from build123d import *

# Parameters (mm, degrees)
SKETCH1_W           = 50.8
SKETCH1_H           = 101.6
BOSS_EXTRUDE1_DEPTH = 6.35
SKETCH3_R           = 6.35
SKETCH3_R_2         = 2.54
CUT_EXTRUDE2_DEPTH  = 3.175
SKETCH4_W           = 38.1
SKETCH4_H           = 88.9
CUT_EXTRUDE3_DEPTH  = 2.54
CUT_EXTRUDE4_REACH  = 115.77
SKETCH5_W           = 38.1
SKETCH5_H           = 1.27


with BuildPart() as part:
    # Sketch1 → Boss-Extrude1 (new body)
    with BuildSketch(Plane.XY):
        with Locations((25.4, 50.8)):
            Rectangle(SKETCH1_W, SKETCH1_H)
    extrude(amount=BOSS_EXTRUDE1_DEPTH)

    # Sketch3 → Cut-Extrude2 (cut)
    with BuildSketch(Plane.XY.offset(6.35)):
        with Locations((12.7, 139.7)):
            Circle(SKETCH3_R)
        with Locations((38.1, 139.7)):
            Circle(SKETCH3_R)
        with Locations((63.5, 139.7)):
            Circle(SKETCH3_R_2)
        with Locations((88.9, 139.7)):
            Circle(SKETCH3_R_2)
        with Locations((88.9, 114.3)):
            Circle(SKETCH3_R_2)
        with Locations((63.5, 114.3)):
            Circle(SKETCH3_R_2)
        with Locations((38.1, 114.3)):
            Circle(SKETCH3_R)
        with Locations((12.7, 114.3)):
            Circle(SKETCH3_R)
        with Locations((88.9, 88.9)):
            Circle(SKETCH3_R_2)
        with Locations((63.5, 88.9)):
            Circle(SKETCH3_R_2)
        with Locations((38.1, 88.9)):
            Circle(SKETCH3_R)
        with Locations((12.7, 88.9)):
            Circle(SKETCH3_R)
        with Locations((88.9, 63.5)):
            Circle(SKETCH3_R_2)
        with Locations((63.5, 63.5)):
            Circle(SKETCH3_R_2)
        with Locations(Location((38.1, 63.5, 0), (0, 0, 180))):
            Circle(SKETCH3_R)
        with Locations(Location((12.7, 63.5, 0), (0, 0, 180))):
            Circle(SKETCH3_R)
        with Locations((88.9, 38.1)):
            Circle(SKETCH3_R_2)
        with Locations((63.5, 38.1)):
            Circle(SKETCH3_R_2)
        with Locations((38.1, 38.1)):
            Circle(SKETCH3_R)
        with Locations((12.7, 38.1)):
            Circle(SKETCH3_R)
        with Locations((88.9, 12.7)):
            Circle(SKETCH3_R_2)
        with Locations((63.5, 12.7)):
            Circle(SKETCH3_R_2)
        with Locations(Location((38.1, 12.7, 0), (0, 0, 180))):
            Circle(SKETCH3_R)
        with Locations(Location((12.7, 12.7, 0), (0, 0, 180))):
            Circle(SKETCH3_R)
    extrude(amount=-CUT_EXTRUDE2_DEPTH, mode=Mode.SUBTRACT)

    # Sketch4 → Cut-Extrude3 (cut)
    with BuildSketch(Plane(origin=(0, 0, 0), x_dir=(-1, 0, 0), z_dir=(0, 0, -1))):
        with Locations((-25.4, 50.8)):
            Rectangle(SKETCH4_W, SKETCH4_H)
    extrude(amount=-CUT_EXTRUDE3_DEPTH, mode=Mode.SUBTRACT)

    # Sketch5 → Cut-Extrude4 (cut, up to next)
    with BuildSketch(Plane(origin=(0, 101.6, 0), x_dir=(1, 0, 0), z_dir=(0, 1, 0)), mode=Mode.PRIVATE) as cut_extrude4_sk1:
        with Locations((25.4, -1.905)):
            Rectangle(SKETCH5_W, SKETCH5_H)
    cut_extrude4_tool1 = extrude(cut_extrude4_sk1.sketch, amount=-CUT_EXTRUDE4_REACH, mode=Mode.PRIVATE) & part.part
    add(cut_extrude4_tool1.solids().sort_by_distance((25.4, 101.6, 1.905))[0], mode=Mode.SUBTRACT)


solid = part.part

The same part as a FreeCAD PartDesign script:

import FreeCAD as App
import Part
import Sketcher
Q = App.Units.Quantity

doc = App.newDocument("Part")
params = doc.addObject("Spreadsheet::Sheet", "Params")
for row, (alias, value) in enumerate([
    ("sketch1_width", "2 in"),
    ("sketch1_height", "4 in"),
    ("pad1_length", "0.25 in"),
    ("sketch2_diameter", "0.5 in"),
    ("sketch2_diameter2", "0.2 in"),
    ("pocket1_length", "0.125 in"),
    ("sketch3_width", "1.5 in"),
    ("sketch3_height", "3.5 in"),
    ("pocket2_length", "0.1 in"),
    ("sketch4_width", "1.5 in"),
    ("sketch4_height", "0.05 in"),
], start=1):
    params.set(f"A{row}", alias)
    params.set(f"B{row}", "=" + value)
    params.setAlias(f"B{row}", alias)

body = doc.addObject("PartDesign::Body", "Body")

sketch1 = body.newObject("Sketcher::SketchObject", "Sketch")
sketch1.AttachmentSupport = (doc.getObject("XY_Plane"), [""])
sketch1.MapMode = "FlatFace"
sketch1.addGeometry(Part.LineSegment(App.Vector(0, 102, 0), App.Vector(0, 0, 0)), False)
sketch1.addGeometry(Part.LineSegment(App.Vector(0, 0, 0), App.Vector(51, 0, 0)), False)
sketch1.addGeometry(Part.LineSegment(App.Vector(51, 0, 0), App.Vector(51, 102, 0)), False)
sketch1.addGeometry(Part.LineSegment(App.Vector(51, 102, 0), App.Vector(0, 102, 0)), False)
sketch1.addConstraint(Sketcher.Constraint("Coincident", 0, 2, 1, 1))
sketch1.addConstraint(Sketcher.Constraint("Coincident", 1, 2, 2, 1))
sketch1.addConstraint(Sketcher.Constraint("Coincident", 2, 2, 3, 1))
sketch1.addConstraint(Sketcher.Constraint("Coincident", 3, 2, 0, 1))
sketch1.addConstraint(Sketcher.Constraint("Vertical", 0))
sketch1.addConstraint(Sketcher.Constraint("Horizontal", 1))
sketch1.addConstraint(Sketcher.Constraint("Vertical", 2))
sketch1.addConstraint(Sketcher.Constraint("Horizontal", 3))
sketch1.addConstraint(Sketcher.Constraint("Coincident", 0, 2, -1, 1))
sketch1.addConstraint(Sketcher.Constraint("DistanceX", 1, 1, 1, 2, Q("2 in")))
sketch1.addConstraint(Sketcher.Constraint("DistanceY", 0, 2, 0, 1, Q("4 in")))
sketch1.setExpression("Constraints[9]", "Params.sketch1_width")
sketch1.setExpression("Constraints[10]", "Params.sketch1_height")
pad1 = body.newObject("PartDesign::Pad", "Pad")
pad1.Profile = sketch1
pad1.setExpression("Length", "Params.pad1_length")

sketch2 = body.newObject("Sketcher::SketchObject", "Sketch001")
sketch2.AttachmentSupport = (doc.getObject("XY_Plane"), [""])
sketch2.MapMode = "FlatFace"
sketch2.AttachmentOffset = App.Placement(App.Vector(0, 0, 0.25 * 25.4), App.Rotation())
sketch2.addGeometry(Part.Circle(App.Vector(12.7, 139.7, 0), App.Vector(0, 0, 1), 6.3), False)
sketch2.addGeometry(Part.Circle(App.Vector(38.1, 139.7, 0), App.Vector(0, 0, 1), 6.3), False)
sketch2.addGeometry(Part.Circle(App.Vector(63.5, 139.7, 0), App.Vector(0, 0, 1), 2.5), False)
sketch2.addGeometry(Part.Circle(App.Vector(88.9, 139.7, 0), App.Vector(0, 0, 1), 2.5), False)
sketch2.addGeometry(Part.Circle(App.Vector(88.9, 114.3, 0), App.Vector(0, 0, 1), 2.5), False)
sketch2.addGeometry(Part.Circle(App.Vector(63.5, 114.3, 0), App.Vector(0, 0, 1), 2.5), False)
sketch2.addGeometry(Part.Circle(App.Vector(38.1, 114.3, 0), App.Vector(0, 0, 1), 6.3), False)
sketch2.addGeometry(Part.Circle(App.Vector(12.7, 114.3, 0), App.Vector(0, 0, 1), 6.3), False)
sketch2.addGeometry(Part.Circle(App.Vector(88.9, 88.9, 0), App.Vector(0, 0, 1), 2.5), False)
sketch2.addGeometry(Part.Circle(App.Vector(63.5, 88.9, 0), App.Vector(0, 0, 1), 2.5), False)
sketch2.addGeometry(Part.Circle(App.Vector(38.1, 88.9, 0), App.Vector(0, 0, 1), 6.3), False)
sketch2.addGeometry(Part.Circle(App.Vector(12.7, 88.9, 0), App.Vector(0, 0, 1), 6.3), False)
sketch2.addGeometry(Part.Circle(App.Vector(88.9, 63.5, 0), App.Vector(0, 0, 1), 2.5), False)
sketch2.addGeometry(Part.Circle(App.Vector(63.5, 63.5, 0), App.Vector(0, 0, 1), 2.5), False)
sketch2.addGeometry(Part.Circle(App.Vector(38.1, 63.5, 0), App.Vector(0, 0, 1), 6.3), False)
sketch2.addGeometry(Part.Circle(App.Vector(12.7, 63.5, 0), App.Vector(0, 0, 1), 6.3), False)
sketch2.addGeometry(Part.Circle(App.Vector(88.9, 38.1, 0), App.Vector(0, 0, 1), 2.5), False)
sketch2.addGeometry(Part.Circle(App.Vector(63.5, 38.1, 0), App.Vector(0, 0, 1), 2.5), False)
sketch2.addGeometry(Part.Circle(App.Vector(38.1, 38.1, 0), App.Vector(0, 0, 1), 6.3), False)
sketch2.addGeometry(Part.Circle(App.Vector(12.7, 38.1, 0), App.Vector(0, 0, 1), 6.3), False)
sketch2.addGeometry(Part.Circle(App.Vector(88.9, 12.7, 0), App.Vector(0, 0, 1), 2.5), False)
sketch2.addGeometry(Part.Circle(App.Vector(63.5, 12.7, 0), App.Vector(0, 0, 1), 2.5), False)
sketch2.addGeometry(Part.Circle(App.Vector(38.1, 12.7, 0), App.Vector(0, 0, 1), 6.3), False)
sketch2.addGeometry(Part.Circle(App.Vector(12.7, 12.7, 0), App.Vector(0, 0, 1), 6.3), False)
sketch2.addConstraint(Sketcher.Constraint("Equal", 0, 1))
sketch2.addConstraint(Sketcher.Constraint("Equal", 2, 3))
sketch2.addConstraint(Sketcher.Constraint("Equal", 3, 4))
sketch2.addConstraint(Sketcher.Constraint("Equal", 4, 5))
sketch2.addConstraint(Sketcher.Constraint("Equal", 1, 6))
sketch2.addConstraint(Sketcher.Constraint("Equal", 6, 7))
sketch2.addConstraint(Sketcher.Constraint("Equal", 5, 8))
sketch2.addConstraint(Sketcher.Constraint("Equal", 8, 9))
sketch2.addConstraint(Sketcher.Constraint("Equal", 7, 10))
sketch2.addConstraint(Sketcher.Constraint("Equal", 10, 11))
sketch2.addConstraint(Sketcher.Constraint("Equal", 9, 12))
sketch2.addConstraint(Sketcher.Constraint("Equal", 12, 13))
sketch2.addConstraint(Sketcher.Constraint("Equal", 11, 14))
sketch2.addConstraint(Sketcher.Constraint("Equal", 14, 15))
sketch2.addConstraint(Sketcher.Constraint("Equal", 13, 16))
sketch2.addConstraint(Sketcher.Constraint("Equal", 16, 17))
sketch2.addConstraint(Sketcher.Constraint("Equal", 15, 18))
sketch2.addConstraint(Sketcher.Constraint("Equal", 18, 19))
sketch2.addConstraint(Sketcher.Constraint("Equal", 17, 20))
sketch2.addConstraint(Sketcher.Constraint("Equal", 20, 21))
sketch2.addConstraint(Sketcher.Constraint("Equal", 19, 22))
sketch2.addConstraint(Sketcher.Constraint("Equal", 22, 23))
sketch2.addConstraint(Sketcher.Constraint("Horizontal", 0, 3, 1, 3))
sketch2.addConstraint(Sketcher.Constraint("Horizontal", 1, 3, 2, 3))
sketch2.addConstraint(Sketcher.Constraint("Horizontal", 2, 3, 3, 3))
sketch2.addConstraint(Sketcher.Constraint("Horizontal", 4, 3, 5, 3))
sketch2.addConstraint(Sketcher.Constraint("Horizontal", 5, 3, 6, 3))
sketch2.addConstraint(Sketcher.Constraint("Horizontal", 6, 3, 7, 3))
sketch2.addConstraint(Sketcher.Constraint("Horizontal", 8, 3, 9, 3))
sketch2.addConstraint(Sketcher.Constraint("Horizontal", 9, 3, 10, 3))
sketch2.addConstraint(Sketcher.Constraint("Horizontal", 10, 3, 11, 3))
sketch2.addConstraint(Sketcher.Constraint("Horizontal", 12, 3, 13, 3))
sketch2.addConstraint(Sketcher.Constraint("Horizontal", 13, 3, 14, 3))
sketch2.addConstraint(Sketcher.Constraint("Horizontal", 14, 3, 15, 3))
sketch2.addConstraint(Sketcher.Constraint("Horizontal", 16, 3, 17, 3))
sketch2.addConstraint(Sketcher.Constraint("Horizontal", 17, 3, 18, 3))
sketch2.addConstraint(Sketcher.Constraint("Horizontal", 18, 3, 19, 3))
sketch2.addConstraint(Sketcher.Constraint("Horizontal", 20, 3, 21, 3))
sketch2.addConstraint(Sketcher.Constraint("Horizontal", 21, 3, 22, 3))
sketch2.addConstraint(Sketcher.Constraint("Horizontal", 22, 3, 23, 3))
sketch2.addConstraint(Sketcher.Constraint("Vertical", 3, 3, 4, 3))
sketch2.addConstraint(Sketcher.Constraint("Vertical", 2, 3, 5, 3))
sketch2.addConstraint(Sketcher.Constraint("Vertical", 1, 3, 6, 3))
sketch2.addConstraint(Sketcher.Constraint("Vertical", 0, 3, 7, 3))
sketch2.addConstraint(Sketcher.Constraint("Vertical", 4, 3, 8, 3))
sketch2.addConstraint(Sketcher.Constraint("Vertical", 5, 3, 9, 3))
sketch2.addConstraint(Sketcher.Constraint("Vertical", 6, 3, 10, 3))
sketch2.addConstraint(Sketcher.Constraint("Vertical", 7, 3, 11, 3))
sketch2.addConstraint(Sketcher.Constraint("Vertical", 8, 3, 12, 3))
sketch2.addConstraint(Sketcher.Constraint("Vertical", 9, 3, 13, 3))
sketch2.addConstraint(Sketcher.Constraint("Vertical", 10, 3, 14, 3))
sketch2.addConstraint(Sketcher.Constraint("Vertical", 11, 3, 15, 3))
sketch2.addConstraint(Sketcher.Constraint("Vertical", 12, 3, 16, 3))
sketch2.addConstraint(Sketcher.Constraint("Vertical", 13, 3, 17, 3))
sketch2.addConstraint(Sketcher.Constraint("Vertical", 14, 3, 18, 3))
sketch2.addConstraint(Sketcher.Constraint("Vertical", 15, 3, 19, 3))
sketch2.addConstraint(Sketcher.Constraint("Vertical", 16, 3, 20, 3))
sketch2.addConstraint(Sketcher.Constraint("Vertical", 17, 3, 21, 3))
sketch2.addConstraint(Sketcher.Constraint("Vertical", 18, 3, 22, 3))
sketch2.addConstraint(Sketcher.Constraint("Vertical", 19, 3, 23, 3))
sketch2.addConstraint(Sketcher.Constraint("Diameter", 0, Q("0.5 in")))
sketch2.addConstraint(Sketcher.Constraint("Diameter", 2, Q("0.2 in")))
sketch2.addConstraint(Sketcher.Constraint("DistanceX", 0, 3, 1, 3, Q("1 in")))
sketch2.addConstraint(Sketcher.Constraint("DistanceX", 1, 3, 2, 3, Q("1 in")))
sketch2.addConstraint(Sketcher.Constraint("DistanceX", 2, 3, 3, 3, Q("1 in")))
sketch2.addConstraint(Sketcher.Constraint("DistanceY", 4, 3, 3, 3, Q("1 in")))
sketch2.addConstraint(Sketcher.Constraint("DistanceY", 8, 3, 4, 3, Q("1 in")))
sketch2.addConstraint(Sketcher.Constraint("DistanceY", 12, 3, 8, 3, Q("1 in")))
sketch2.addConstraint(Sketcher.Constraint("DistanceY", 16, 3, 12, 3, Q("1 in")))
sketch2.addConstraint(Sketcher.Constraint("DistanceY", 20, 3, 16, 3, Q("1 in")))
sketch2.addConstraint(Sketcher.Constraint("DistanceX", -1, 1, 0, 3, Q("0.5 in")))
sketch2.addConstraint(Sketcher.Constraint("DistanceY", -1, 1, 0, 3, Q("5.5 in")))
sketch2.setExpression("Constraints[60]", "Params.sketch2_diameter")
sketch2.setExpression("Constraints[61]", "Params.sketch2_diameter2")
pocket1 = body.newObject("PartDesign::Pocket", "Pocket")
pocket1.Profile = sketch2
pocket1.setExpression("Length", "Params.pocket1_length")

sketch3 = body.newObject("Sketcher::SketchObject", "Sketch002")
sketch3.AttachmentSupport = (doc.getObject("XY_Plane"), [""])
sketch3.MapMode = "FlatFace"
sketch3.addGeometry(Part.LineSegment(App.Vector(44, 95, 0), App.Vector(44, 6, 0)), False)
sketch3.addGeometry(Part.LineSegment(App.Vector(44, 6, 0), App.Vector(6, 6, 0)), False)
sketch3.addGeometry(Part.LineSegment(App.Vector(6, 6, 0), App.Vector(6, 95, 0)), False)
sketch3.addGeometry(Part.LineSegment(App.Vector(6, 95, 0), App.Vector(44, 95, 0)), False)
sketch3.addConstraint(Sketcher.Constraint("Coincident", 0, 2, 1, 1))
sketch3.addConstraint(Sketcher.Constraint("Coincident", 1, 2, 2, 1))
sketch3.addConstraint(Sketcher.Constraint("Coincident", 2, 2, 3, 1))
sketch3.addConstraint(Sketcher.Constraint("Coincident", 3, 2, 0, 1))
sketch3.addConstraint(Sketcher.Constraint("Vertical", 0))
sketch3.addConstraint(Sketcher.Constraint("Horizontal", 1))
sketch3.addConstraint(Sketcher.Constraint("Vertical", 2))
sketch3.addConstraint(Sketcher.Constraint("Horizontal", 3))
sketch3.addConstraint(Sketcher.Constraint("DistanceX", 1, 2, 1, 1, Q("1.5 in")))
sketch3.addConstraint(Sketcher.Constraint("DistanceY", 0, 2, 0, 1, Q("3.5 in")))
sketch3.addConstraint(Sketcher.Constraint("DistanceX", -1, 1, 0, 2, Q("1.75 in")))
sketch3.addConstraint(Sketcher.Constraint("DistanceY", -1, 1, 0, 2, Q("0.25 in")))
sketch3.setExpression("Constraints[8]", "Params.sketch3_width")
sketch3.setExpression("Constraints[9]", "Params.sketch3_height")
pocket2 = body.newObject("PartDesign::Pocket", "Pocket001")
pocket2.Profile = sketch3
pocket2.setExpression("Length", "Params.pocket2_length")
pocket2.Reversed = True

sketch4 = body.newObject("Sketcher::SketchObject", "Sketch003")
sketch4.AttachmentSupport = (doc.getObject("XZ_Plane"), [""])
sketch4.MapMode = "FlatFace"
sketch4.AttachmentOffset = App.Placement(App.Vector(0, 0, -4 * 25.4), App.Rotation())
sketch4.addGeometry(Part.LineSegment(App.Vector(6.3, 1.3, 0), App.Vector(6.3, 2.5, 0)), False)
sketch4.addGeometry(Part.LineSegment(App.Vector(6.3, 2.5, 0), App.Vector(44.5, 2.5, 0)), False)
sketch4.addGeometry(Part.LineSegment(App.Vector(44.5, 2.5, 0), App.Vector(44.5, 1.3, 0)), False)
sketch4.addGeometry(Part.LineSegment(App.Vector(44.5, 1.3, 0), App.Vector(6.3, 1.3, 0)), False)
sketch4.addConstraint(Sketcher.Constraint("Coincident", 0, 2, 1, 1))
sketch4.addConstraint(Sketcher.Constraint("Coincident", 1, 2, 2, 1))
sketch4.addConstraint(Sketcher.Constraint("Coincident", 2, 2, 3, 1))
sketch4.addConstraint(Sketcher.Constraint("Coincident", 3, 2, 0, 1))
sketch4.addConstraint(Sketcher.Constraint("Vertical", 0))
sketch4.addConstraint(Sketcher.Constraint("Horizontal", 1))
sketch4.addConstraint(Sketcher.Constraint("Vertical", 2))
sketch4.addConstraint(Sketcher.Constraint("Horizontal", 3))
sketch4.addConstraint(Sketcher.Constraint("DistanceX", 1, 1, 1, 2, Q("1.5 in")))
sketch4.addConstraint(Sketcher.Constraint("DistanceY", 0, 1, 0, 2, Q("0.05 in")))
sketch4.addConstraint(Sketcher.Constraint("DistanceY", -1, 1, 0, 2, Q("0.1 in")))
sketch4.addConstraint(Sketcher.Constraint("DistanceX", -1, 1, 0, 2, Q("0.25 in")))
sketch4.setExpression("Constraints[8]", "Params.sketch4_width")
sketch4.setExpression("Constraints[9]", "Params.sketch4_height")
pocket3 = body.newObject("PartDesign::Pocket", "Pocket002")
pocket3.Profile = sketch4
pocket3.Type = "UpToFirst"
pocket3.Reversed = True

doc.recompute()
